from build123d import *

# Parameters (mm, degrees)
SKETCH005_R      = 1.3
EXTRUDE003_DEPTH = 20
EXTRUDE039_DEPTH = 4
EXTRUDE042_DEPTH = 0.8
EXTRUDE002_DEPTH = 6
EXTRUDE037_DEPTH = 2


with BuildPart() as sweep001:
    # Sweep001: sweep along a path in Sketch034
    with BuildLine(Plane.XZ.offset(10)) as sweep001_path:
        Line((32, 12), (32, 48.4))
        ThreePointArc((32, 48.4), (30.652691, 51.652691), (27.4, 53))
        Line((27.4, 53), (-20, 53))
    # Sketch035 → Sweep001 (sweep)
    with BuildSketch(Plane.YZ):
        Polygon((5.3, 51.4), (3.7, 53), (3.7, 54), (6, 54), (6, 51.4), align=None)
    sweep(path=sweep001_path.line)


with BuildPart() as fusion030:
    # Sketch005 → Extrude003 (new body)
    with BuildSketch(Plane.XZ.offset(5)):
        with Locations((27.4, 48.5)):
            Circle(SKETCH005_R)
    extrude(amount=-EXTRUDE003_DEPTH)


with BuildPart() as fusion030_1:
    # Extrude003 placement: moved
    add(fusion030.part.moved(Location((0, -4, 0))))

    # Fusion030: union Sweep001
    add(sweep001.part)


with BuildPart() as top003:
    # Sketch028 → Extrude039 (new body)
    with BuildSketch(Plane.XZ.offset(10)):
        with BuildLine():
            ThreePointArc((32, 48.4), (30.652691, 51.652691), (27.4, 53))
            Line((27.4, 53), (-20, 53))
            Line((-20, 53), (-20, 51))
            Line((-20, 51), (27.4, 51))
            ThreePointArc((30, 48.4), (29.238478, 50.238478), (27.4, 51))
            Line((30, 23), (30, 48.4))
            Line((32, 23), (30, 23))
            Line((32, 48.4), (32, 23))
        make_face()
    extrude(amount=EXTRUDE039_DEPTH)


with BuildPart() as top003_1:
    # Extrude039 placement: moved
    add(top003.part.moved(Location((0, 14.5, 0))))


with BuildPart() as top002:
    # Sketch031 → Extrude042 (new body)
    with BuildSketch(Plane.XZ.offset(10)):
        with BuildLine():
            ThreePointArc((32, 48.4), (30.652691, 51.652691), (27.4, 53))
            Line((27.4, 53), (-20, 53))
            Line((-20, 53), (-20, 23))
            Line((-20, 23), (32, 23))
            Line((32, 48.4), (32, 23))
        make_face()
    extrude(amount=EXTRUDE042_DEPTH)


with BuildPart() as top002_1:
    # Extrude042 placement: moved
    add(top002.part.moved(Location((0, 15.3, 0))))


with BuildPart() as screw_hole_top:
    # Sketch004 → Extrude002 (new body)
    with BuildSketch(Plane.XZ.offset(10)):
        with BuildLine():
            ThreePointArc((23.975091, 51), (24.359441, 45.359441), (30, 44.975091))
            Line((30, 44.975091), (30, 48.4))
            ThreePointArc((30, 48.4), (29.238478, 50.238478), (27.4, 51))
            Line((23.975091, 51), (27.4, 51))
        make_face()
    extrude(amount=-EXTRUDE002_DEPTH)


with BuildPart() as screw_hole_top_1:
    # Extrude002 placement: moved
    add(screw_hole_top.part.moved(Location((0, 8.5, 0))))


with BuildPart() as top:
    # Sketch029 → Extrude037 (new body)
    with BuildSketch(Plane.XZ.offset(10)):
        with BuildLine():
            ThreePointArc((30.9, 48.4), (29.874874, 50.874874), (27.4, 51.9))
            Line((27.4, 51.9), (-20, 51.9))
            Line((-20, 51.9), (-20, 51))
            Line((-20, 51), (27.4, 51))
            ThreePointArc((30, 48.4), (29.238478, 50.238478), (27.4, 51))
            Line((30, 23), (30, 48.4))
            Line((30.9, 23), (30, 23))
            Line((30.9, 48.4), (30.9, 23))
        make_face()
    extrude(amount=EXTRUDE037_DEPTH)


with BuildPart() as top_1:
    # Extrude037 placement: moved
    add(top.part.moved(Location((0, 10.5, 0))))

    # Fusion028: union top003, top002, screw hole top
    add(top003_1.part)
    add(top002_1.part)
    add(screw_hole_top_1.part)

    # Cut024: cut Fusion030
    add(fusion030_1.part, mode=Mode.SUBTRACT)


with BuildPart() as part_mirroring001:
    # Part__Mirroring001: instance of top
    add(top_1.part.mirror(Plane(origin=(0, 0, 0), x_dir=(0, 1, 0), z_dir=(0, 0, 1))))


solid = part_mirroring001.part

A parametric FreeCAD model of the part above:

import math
import FreeCAD as App
import Part
import Sketcher
from FreeCAD import Vector
Q = App.Units.Quantity


def add_polygon(sketch, points):
    """Adds a closed chain of lines whose ends are joined by coincident constraints."""
    first, n = sketch.GeometryCount, len(points)
    for a, b in zip(points, points[1:] + points[:1]):
        sketch.addGeometry(Part.LineSegment(App.Vector(*a, 0), App.Vector(*b, 0)), False)
    for i in range(n):
        sketch.addConstraint(Sketcher.Constraint("Coincident", first + i, 2, first + (i + 1) % n, 1))

doc = App.newDocument("Part")
params = doc.addObject("Spreadsheet::Sheet", "Params")
for row, (alias, value) in enumerate([
    ("sketch1_height", "1 mm"),
    ("sketch1_width", "0.7 mm"),
    ("sketch1_width2", "2.3 mm"),
    ("sketch2_radius", "4.600001 mm"),
    ("sketch2_width", "47.4 mm"),
    ("sketch2_height", "36.4 mm"),
    ("sketch3_diameter", "2.6 mm"),
    ("pad1_length", "20 mm"),
    ("sketch4_radius", "4.600001 mm"),
    ("sketch4_radius2", "2.599999 mm"),
    ("sketch4_width", "47.4 mm"),
    ("sketch4_height", "25.4 mm"),
    ("pad2_length", "4 mm"),
    ("sketch5_radius", "4.600001 mm"),
    ("sketch5_width", "52 mm"),
    ("sketch5_height", "30 mm"),
    ("pad3_length", "0.8 mm"),
    ("sketch6_radius", "4.3 mm"),
    ("sketch6_radius2", "2.599999 mm"),
    ("pad4_length", "6 mm"),
    ("sketch7_radius", "3.499999 mm"),
    ("sketch7_radius2", "2.599999 mm"),
    ("sketch7_width", "47.4 mm"),
    ("sketch7_height", "25.4 mm"),
    ("pad5_length", "2 mm"),
], start=1):
    params.set(f"A{row}", alias)
    params.set(f"B{row}", "=" + value)
    params.setAlias(f"B{row}", alias)

body = doc.addObject("PartDesign::Body", "Body")

# Sketch on YZ plane
sketch1 = body.newObject("Sketcher::SketchObject", "Sketch")
sketch1.AttachmentSupport = (doc.getObject("YZ_Plane"), [""])
sketch1.MapMode = "FlatFace"
add_polygon(sketch1, [(3.7, 53), (5.3, 51.4), (6, 51.4), (6, 54), (3.7, 54)])  # lines 0-4
sketch1.addConstraint([
    Sketcher.Constraint("Horizontal", 1),
    Sketcher.Constraint("Vertical", 2),
    Sketcher.Constraint("Horizontal", 3),
    Sketcher.Constraint("Vertical", 4),
    Sketcher.Constraint("DistanceY", 4, 2, 4, 1, 1.0),
    Sketcher.Constraint("Angle", 0, Q("-45 deg")),
    Sketcher.Constraint("DistanceX", 1, 1, 1, 2, 0.7),
    Sketcher.Constraint("DistanceX", 3, 2, 3, 1, 2.3),
    Sketcher.Constraint("DistanceX", -1, 1, 1, 2, 6.0),
    Sketcher.Constraint("DistanceY", -1, 1, 2, 2, 54.0),
])
sketch1.setExpression("Constraints[9]", "Params.sketch1_height")
sketch1.setExpression("Constraints[11]", "Params.sketch1_width")
sketch1.setExpression("Constraints[12]", "Params.sketch1_width2")

# Sketch on XZ plane
sketch2 = body.newObject("Sketcher::SketchObject", "Sketch001")
sketch2.AttachmentSupport = (doc.getObject("XZ_Plane"), [""])
sketch2.MapMode = "FlatFace"
sketch2.AttachmentOffset = App.Placement(Vector(0, 0, 10), App.Rotation())
sketch2.addGeometry([
    Part.LineSegment(Vector(32, 12, 0), Vector(32, 48.4, 0)),
    Part.ArcOfCircle(Part.Circle(Vector(27.399999, 48.399999, 0), Vector(0, 0, 1), 4.600001), math.radians(0.000008), math.radians(89.999992)),
    Part.LineSegment(Vector(27.4, 53, 0), Vector(-20, 53, 0)),
], False)
sketch2.addConstraint([
    Sketcher.Constraint("Tangent", 0, 2, 1, 1),
    Sketcher.Constraint("Tangent", 1, 2, 2, 1),
    Sketcher.Constraint("Vertical", 0),
    Sketcher.Constraint("Horizontal", 2),
    Sketcher.Constraint("Radius", 1, 4.600001),
    Sketcher.Constraint("DistanceX", 2, 2, 2, 1, 47.4),
    Sketcher.Constraint("DistanceY", 0, 1, 0, 2, 36.4),
    Sketcher.Constraint("DistanceX", -1, 1, 0, 1, 32.0),
    Sketcher.Constraint("DistanceY", -1, 1, 0, 1, 12.0),
])
sketch2.setExpression("Constraints[4]", "Params.sketch2_radius")
sketch2.setExpression("Constraints[5]", "Params.sketch2_width")
sketch2.setExpression("Constraints[6]", "Params.sketch2_height")
doc.recompute()

additivepipe = body.newObject("PartDesign::AdditivePipe", "AdditivePipe")
additivepipe.Profile = sketch1
additivepipe.Spine = (sketch2, ["Edge1", "Edge2", "Edge3"])
body2 = doc.addObject("PartDesign::Body", "Body001")

# Sketch on XZ plane
sketch3 = body2.newObject("Sketcher::SketchObject", "Sketch002")
sketch3.AttachmentSupport = (doc.getObject("XZ_Plane001"), [""])
sketch3.MapMode = "FlatFace"
sketch3.AttachmentOffset = App.Placement(Vector(0, 0, 5), App.Rotation())
sketch3.addGeometry(Part.Circle(Vector(27.4, 48.5, 0), Vector(0, 0, 1), 1.3), False)
sketch3.addConstraint([
    Sketcher.Constraint("Diameter", 0, 2.6),
    Sketcher.Constraint("DistanceX", -1, 1, 0, 3, 27.4),
    Sketcher.Constraint("DistanceY", -1, 1, 0, 3, 48.5),
])
sketch3.setExpression("Constraints[0]", "Params.sketch3_diameter")
pad1 = body2.newObject("PartDesign::Pad", "Pad")
pad1.Profile = sketch3
pad1.setExpression("Length", "Params.pad1_length")
pad1.Reversed = True
body3 = doc.addObject("PartDesign::Body", "Body002")
body3.AllowCompound = True
doc.recompute()

body2.Placement = App.Placement(Vector(0, -4, 0), App.Rotation(Vector(0, 0, 1), 0))
boolean = body3.newObject("PartDesign::Boolean", "Boolean")
boolean.Type = "Fuse"
boolean.addObjects([body2])
doc.recompute()

boolean2 = body3.newObject("PartDesign::Boolean", "Boolean001")
boolean2.Type = "Fuse"
boolean2.addObjects([body])
body4 = doc.addObject("PartDesign::Body", "Body003")

# Sketch on XZ plane
sketch4 = body4.newObject("Sketcher::SketchObject", "Sketch003")
sketch4.AttachmentSupport = (doc.getObject("XZ_Plane003"), [""])
sketch4.MapMode = "FlatFace"
sketch4.AttachmentOffset = App.Placement(Vector(0, 0, 10), App.Rotation())
sketch4.addGeometry([
    Part.ArcOfCircle(Part.Circle(Vector(27.399999, 48.399999, 0), Vector(0, 0, 1), 4.600001), math.radians(0.000008), math.radians(89.999992)),  # 0
    Part.LineSegment(Vector(27.4, 53, 0), Vector(-20, 53, 0)),  # 1
    Part.LineSegment(Vector(-20, 53, 0), Vector(-20, 51, 0)),  # 2
    Part.LineSegment(Vector(-20, 51, 0), Vector(27.4, 51, 0)),  # 3
    Part.ArcOfCircle(Part.Circle(Vector(27.400001, 48.400001, 0), Vector(0, 0, 1), 2.599999), math.radians(-0.000028), math.radians(90.000028)),  # 4
    Part.LineSegment(Vector(30, 48.4, 0), Vector(30, 23, 0)),  # 5
    Part.LineSegment(Vector(30, 23, 0), Vector(32, 23, 0)),  # 6
    Part.LineSegment(Vector(32, 23, 0), Vector(32, 48.4, 0)),  # 7
], False)
sketch4.addConstraint([
    Sketcher.Constraint("Tangent", 0, 2, 1, 1),
    Sketcher.Constraint("Coincident", 1, 2, 2, 1),
    Sketcher.Constraint("Coincident", 2, 2, 3, 1),
    Sketcher.Constraint("Tangent", 3, 2, 4, 2),
    Sketcher.Constraint("Tangent", 4, 1, 5, 1),
    Sketcher.Constraint("Coincident", 5, 2, 6, 1),
    Sketcher.Constraint("Coincident", 6, 2, 7, 1),
    Sketcher.Constraint("Tangent", 7, 2, 0, 1),
    Sketcher.Constraint("Horizontal", 1),
    Sketcher.Constraint("Vertical", 2),
    Sketcher.Constraint("Horizontal", 3),
    Sketcher.Constraint("Vertical", 5),
    Sketcher.Constraint("Horizontal", 6),
    Sketcher.Constraint("Vertical", 7),
    Sketcher.Constraint("Coincident", 4, 3, 0, 3),
    Sketcher.Constraint("Radius", 0, 4.600001),
    Sketcher.Constraint("Radius", 4, 2.599999),
    Sketcher.Constraint("DistanceX", 1, 2, 1, 1, 47.4),
    Sketcher.Constraint("DistanceY", 5, 2, 5, 1, 25.4),
    Sketcher.Constraint("DistanceY", -1, 1, 0, 2, 53.0),
    Sketcher.Constraint("DistanceX", 1, 2, -1, 1, 20.0),
])
sketch4.setExpression("Constraints[15]", "Params.sketch4_radius")
sketch4.setExpression("Constraints[16]", "Params.sketch4_radius2")
sketch4.setExpression("Constraints[17]", "Params.sketch4_width")
sketch4.setExpression("Constraints[18]", "Params.sketch4_height")
pad2 = body4.newObject("PartDesign::Pad", "Pad001")
pad2.Profile = sketch4
pad2.setExpression("Length", "Params.pad2_length")
body5 = doc.addObject("PartDesign::Body", "Body004")
doc.recompute()

body4.Placement = App.Placement(Vector(0, 14.5, 0), App.Rotation(Vector(0, 0, 1), 0))
boolean3 = body5.newObject("PartDesign::Boolean", "Boolean002")
boolean3.Type = "Fuse"
boolean3.addObjects([body4])
body6 = doc.addObject("PartDesign::Body", "Body005")

# Sketch on XZ plane
sketch5 = body6.newObject("Sketcher::SketchObject", "Sketch004")
sketch5.AttachmentSupport = (doc.getObject("XZ_Plane005"), [""])
sketch5.MapMode = "FlatFace"
sketch5.AttachmentOffset = App.Placement(Vector(0, 0, 10), App.Rotation())
sketch5.addGeometry([
    Part.ArcOfCircle(Part.Circle(Vector(27.399999, 48.399999, 0), Vector(0, 0, 1), 4.600001), math.radians(0.000008), math.radians(89.999992)),  # 0
    Part.LineSegment(Vector(27.4, 53, 0), Vector(-20, 53, 0)),  # 1
    Part.LineSegment(Vector(-20, 53, 0), Vector(-20, 23, 0)),  # 2
    Part.LineSegment(Vector(-20, 23, 0), Vector(32, 23, 0)),  # 3
    Part.LineSegment(Vector(32, 23, 0), Vector(32, 48.4, 0)),  # 4
], False)
sketch5.addConstraint([
    Sketcher.Constraint("Tangent", 0, 2, 1, 1),
    Sketcher.Constraint("Coincident", 1, 2, 2, 1),
    Sketcher.Constraint("Coincident", 2, 2, 3, 1),
    Sketcher.Constraint("Coincident", 3, 2, 4, 1),
    Sketcher.Constraint("Tangent", 4, 2, 0, 1),
    Sketcher.Constraint("Horizontal", 1),
    Sketcher.Constraint("Vertical", 2),
    Sketcher.Constraint("Horizontal", 3),
    Sketcher.Constraint("Vertical", 4),
    Sketcher.Constraint("Radius", 0, 4.600001),
    Sketcher.Constraint("DistanceX", 3, 1, 3, 2, 52.0),
    Sketcher.Constraint("DistanceY", 2, 2, 2, 1, 30.0),
    Sketcher.Constraint("DistanceY", -1, 1, 0, 2, 53.0),
    Sketcher.Constraint("DistanceX", 1, 2, -1, 1, 20.0),
])
sketch5.setExpression("Constraints[9]", "Params.sketch5_radius")
sketch5.setExpression("Constraints[10]", "Params.sketch5_width")
sketch5.setExpression("Constraints[11]", "Params.sketch5_height")
pad3 = body6.newObject("PartDesign::Pad", "Pad002")
pad3.Profile = sketch5
pad3.setExpression("Length", "Params.pad3_length")
body7 = doc.addObject("PartDesign::Body", "Body006")
doc.recompute()

body6.Placement = App.Placement(Vector(0, 15.3, 0), App.Rotation(Vector(0, 0, 1), 0))
boolean4 = body7.newObject("PartDesign::Boolean", "Boolean003")
boolean4.Type = "Fuse"
boolean4.addObjects([body6])
body8 = doc.addObject("PartDesign::Body", "Body007")

# Sketch on XZ plane
sketch6 = body8.newObject("Sketcher::SketchObject", "Sketch005")
sketch6.AttachmentSupport = (doc.getObject("XZ_Plane007"), [""])
sketch6.MapMode = "FlatFace"
sketch6.AttachmentOffset = App.Placement(Vector(0, 0, 10), App.Rotation())
sketch6.addGeometry([
    Part.ArcOfCircle(Part.Circle(Vector(27.4, 48.4, 0), Vector(0, 0, 1), 4.3), math.radians(142.796264), math.radians(307.203736)),
    Part.LineSegment(Vector(30, 44.975091, 0), Vector(30, 48.4, 0)),
    Part.ArcOfCircle(Part.Circle(Vector(27.400001, 48.400001, 0), Vector(0, 0, 1), 2.599999), math.radians(-0.000028), math.radians(90.000028)),
    Part.LineSegment(Vector(27.4, 51, 0), Vector(23.975091, 51, 0)),
], False)
sketch6.addConstraint([
    Sketcher.Constraint("Coincident", 0, 2, 1, 1),
    Sketcher.Constraint("Tangent", 1, 2, 2, 1),
    Sketcher.Constraint("Tangent", 2, 2, 3, 1),
    Sketcher.Constraint("Coincident", 3, 2, 0, 1),
    Sketcher.Constraint("Vertical", 1),
    Sketcher.Constraint("Horizontal", 3),
    Sketcher.Constraint("Coincident", 2, 3, 0, 3),
    Sketcher.Constraint("Radius", 0, 4.3),
    Sketcher.Constraint("Radius", 2, 2.599999),
    Sketcher.Constraint("DistanceX", -1, 1, 0, 2, 30.0),
    Sketcher.Constraint("DistanceY", -1, 1, 2, 2, 51.0),
])
sketch6.setExpression("Constraints[7]", "Params.sketch6_radius")
sketch6.setExpression("Constraints[8]", "Params.sketch6_radius2")
pad4 = body8.newObject("PartDesign::Pad", "Pad003")
pad4.Profile = sketch6
pad4.setExpression("Length", "Params.pad4_length")
pad4.Reversed = True
body9 = doc.addObject("PartDesign::Body", "Body008")
doc.recompute()

body8.Placement = App.Placement(Vector(0, 8.5, 0), App.Rotation(Vector(0, 0, 1), 0))
boolean5 = body9.newObject("PartDesign::Boolean", "Boolean004")
boolean5.Type = "Fuse"
boolean5.addObjects([body8])
body10 = doc.addObject("PartDesign::Body", "Body009")

# Sketch on XZ plane
sketch7 = body10.newObject("Sketcher::SketchObject", "Sketch006")
sketch7.AttachmentSupport = (doc.getObject("XZ_Plane009"), [""])
sketch7.MapMode = "FlatFace"
sketch7.AttachmentOffset = App.Placement(Vector(0, 0, 10), App.Rotation())
sketch7.addGeometry([
    Part.ArcOfCircle(Part.Circle(Vector(27.400001, 48.400001, 0), Vector(0, 0, 1), 3.499999), math.radians(-0.000015), math.radians(90.000015)),  # 0
    Part.LineSegment(Vector(27.4, 51.9, 0), Vector(-20, 51.9, 0)),  # 1
    Part.LineSegment(Vector(-20, 51.9, 0), Vector(-20, 51, 0)),  # 2
    Part.LineSegment(Vector(-20, 51, 0), Vector(27.4, 51, 0)),  # 3
    Part.ArcOfCircle(Part.Circle(Vector(27.400001, 48.400001, 0), Vector(0, 0, 1), 2.599999), math.radians(-0.000028), math.radians(90.000028)),  # 4
    Part.LineSegment(Vector(30, 48.4, 0), Vector(30, 23, 0)),  # 5
    Part.LineSegment(Vector(30, 23, 0), Vector(30.9, 23, 0)),  # 6
    Part.LineSegment(Vector(30.9, 23, 0), Vector(30.9, 48.4, 0)),  # 7
], False)
sketch7.addConstraint([
    Sketcher.Constraint("Tangent", 0, 2, 1, 1),
    Sketcher.Constraint("Coincident", 1, 2, 2, 1),
    Sketcher.Constraint("Coincident", 2, 2, 3, 1),
    Sketcher.Constraint("Tangent", 3, 2, 4, 2),
    Sketcher.Constraint("Tangent", 4, 1, 5, 1),
    Sketcher.Constraint("Coincident", 5, 2, 6, 1),
    Sketcher.Constraint("Coincident", 6, 2, 7, 1),
    Sketcher.Constraint("Tangent", 7, 2, 0, 1),
    Sketcher.Constraint("Horizontal", 1),
    Sketcher.Constraint("Vertical", 2),
    Sketcher.Constraint("Horizontal", 3),
    Sketcher.Constraint("Vertical", 5),
    Sketcher.Constraint("Horizontal", 6),
    Sketcher.Constraint("Vertical", 7),
    Sketcher.Constraint("Coincident", 4, 3, 0, 3),
    Sketcher.Constraint("Radius", 0, 3.499999),
    Sketcher.Constraint("Radius", 4, 2.599999),
    Sketcher.Constraint("DistanceX", 1, 2, 1, 1, 47.4),
    Sketcher.Constraint("DistanceY", 5, 2, 5, 1, 25.4),
    Sketcher.Constraint("DistanceX", 1, 2, -1, 1, 20.0),
    Sketcher.Constraint("DistanceY", -1, 1, 2, 2, 51.0),
])
sketch7.setExpression("Constraints[15]", "Params.sketch7_radius")
sketch7.setExpression("Constraints[16]", "Params.sketch7_radius2")
sketch7.setExpression("Constraints[17]", "Params.sketch7_width")
sketch7.setExpression("Constraints[18]", "Params.sketch7_height")
pad5 = body10.newObject("PartDesign::Pad", "Pad004")
pad5.Profile = sketch7
pad5.setExpression("Length", "Params.pad5_length")
body11 = doc.addObject("PartDesign::Body", "Body010")
doc.recompute()

body10.Placement = App.Placement(Vector(0, 10.5, 0), App.Rotation(Vector(0, 0, 1), 0))
boolean6 = body11.newObject("PartDesign::Boolean", "Boolean005")
boolean6.Type = "Fuse"
boolean6.addObjects([body10])
doc.recompute()

boolean7 = body11.newObject("PartDesign::Boolean", "Boolean006")
boolean7.Type = "Fuse"
boolean7.addObjects([body5])
doc.recompute()

boolean8 = body11.newObject("PartDesign::Boolean", "Boolean007")
boolean8.Type = "Fuse"
boolean8.addObjects([body7])
doc.recompute()

boolean9 = body11.newObject("PartDesign::Boolean", "Boolean008")
boolean9.Type = "Fuse"
boolean9.addObjects([body9])
doc.recompute()

boolean10 = body11.newObject("PartDesign::Boolean", "Boolean009")
boolean10.Type = "Cut"
boolean10.addObjects([body3])
body12 = doc.addObject("PartDesign::Body", "Body011")
doc.recompute()

mirroring = doc.addObject("Part::Mirroring", "Mirroring")
mirroring.Source = body11
mirroring.Base = Vector(0, 0, 0)
mirroring.Normal = Vector(0, 0, 1)
body12.BaseFeature = mirroring
doc.recompute()
body11.Visibility = False
mirroring.Visibility = False

doc.recompute()
